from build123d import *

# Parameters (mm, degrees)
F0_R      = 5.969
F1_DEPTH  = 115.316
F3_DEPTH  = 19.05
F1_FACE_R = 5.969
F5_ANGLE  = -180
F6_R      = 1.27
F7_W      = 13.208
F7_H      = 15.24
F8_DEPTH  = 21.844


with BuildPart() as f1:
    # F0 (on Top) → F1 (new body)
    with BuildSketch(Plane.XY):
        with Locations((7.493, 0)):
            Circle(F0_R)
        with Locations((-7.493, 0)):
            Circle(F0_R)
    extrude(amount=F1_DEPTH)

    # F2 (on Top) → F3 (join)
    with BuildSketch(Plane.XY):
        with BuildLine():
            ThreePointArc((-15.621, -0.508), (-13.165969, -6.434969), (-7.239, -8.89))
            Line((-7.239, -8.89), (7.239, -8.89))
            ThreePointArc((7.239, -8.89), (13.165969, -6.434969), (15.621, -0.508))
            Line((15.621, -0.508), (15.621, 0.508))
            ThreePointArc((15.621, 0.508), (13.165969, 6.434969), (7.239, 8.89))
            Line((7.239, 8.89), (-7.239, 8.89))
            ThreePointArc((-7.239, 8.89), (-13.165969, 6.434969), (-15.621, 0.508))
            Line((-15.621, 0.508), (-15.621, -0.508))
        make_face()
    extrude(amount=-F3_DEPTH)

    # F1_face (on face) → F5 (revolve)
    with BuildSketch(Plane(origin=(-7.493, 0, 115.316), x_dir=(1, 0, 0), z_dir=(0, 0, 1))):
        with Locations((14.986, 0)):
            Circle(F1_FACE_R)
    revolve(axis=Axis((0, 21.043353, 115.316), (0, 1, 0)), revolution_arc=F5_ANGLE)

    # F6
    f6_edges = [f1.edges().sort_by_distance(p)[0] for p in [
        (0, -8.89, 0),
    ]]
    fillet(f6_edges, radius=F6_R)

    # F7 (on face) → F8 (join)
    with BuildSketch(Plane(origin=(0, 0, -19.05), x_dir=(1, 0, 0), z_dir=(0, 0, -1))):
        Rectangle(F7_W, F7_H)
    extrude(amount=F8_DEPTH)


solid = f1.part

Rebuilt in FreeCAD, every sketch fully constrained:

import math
import FreeCAD as App
import Part
import Sketcher
Q = App.Units.Quantity


def edges_at(feature, points):
    """Names of the edges that pass closest to the given points."""
    edges = feature.Shape.Edges
    near = lambda p: min(range(len(edges)), key=lambda i: edges[i].distToShape(Part.Vertex(*p))[0])
    return sorted({f"Edge{near(p) + 1}" for p in points})

doc = App.newDocument("Part")
body = doc.addObject("PartDesign::Body", "Body")
body.AllowCompound = True

# Sketch on XY plane
sketch1 = doc.addObject("Sketcher::SketchObject", "Sketch")
body.addObject(sketch1)
sketch1.AttachmentSupport = (doc.XY_Plane, [""])
sketch1.MapMode = "FlatFace"
sketch1.addGeometry([
    Part.Circle(App.Vector(7, 0, 0), App.Vector(0, 0, 1), 6),
    Part.Circle(App.Vector(-7, 0, 0), App.Vector(0, 0, 1), 6),
], False)
sketch1.addConstraint([
    Sketcher.Constraint("Equal", 0, 1),
    Sketcher.Constraint("Symmetric", 0, 3, 1, 3, -1, 1),
    Sketcher.Constraint("PointOnObject", 0, 3, -1),
    Sketcher.Constraint("Diameter", 0, Q("0.47 in")),
    Sketcher.Constraint("DistanceX", 1, 3, 0, 3, Q("0.59 in")),
])
pad1 = doc.addObject("PartDesign::Pad", "Pad")
body.addObject(pad1)
pad1.Profile = sketch1
pad1.Length = Q("4.54 in")

# Sketch on XY plane
sketch2 = doc.addObject("Sketcher::SketchObject", "Sketch001")
body.addObject(sketch2)
sketch2.AttachmentSupport = (doc.XY_Plane, [""])
sketch2.MapMode = "FlatFace"
sketch2.addGeometry([
    Part.ArcOfCircle(Part.Circle(App.Vector(-7.2, -0.5, 0), App.Vector(0, 0, 1), 8.4), math.radians(-180), math.radians(-90)),  # 0
    Part.LineSegment(App.Vector(-7.2, -8.9, 0), App.Vector(7.2, -8.9, 0)),  # 1
    Part.ArcOfCircle(Part.Circle(App.Vector(7.2, -0.5, 0), App.Vector(0, 0, 1), 8.4), math.radians(-90), math.radians(0)),  # 2
    Part.LineSegment(App.Vector(15.6, -0.5, 0), App.Vector(15.6, 0.5, 0)),  # 3
    Part.ArcOfCircle(Part.Circle(App.Vector(7.2, 0.5, 0), App.Vector(0, 0, 1), 8.4), math.radians(0), math.radians(90)),  # 4
    Part.LineSegment(App.Vector(7.2, 8.9, 0), App.Vector(-7.2, 8.9, 0)),  # 5
    Part.ArcOfCircle(Part.Circle(App.Vector(-7.2, 0.5, 0), App.Vector(0, 0, 1), 8.4), math.radians(90), math.radians(180)),  # 6
    Part.LineSegment(App.Vector(-15.6, 0.5, 0), App.Vector(-15.6, -0.5, 0)),  # 7
], False)
sketch2.addConstraint([
    Sketcher.Constraint("Tangent", 0, 2, 1, 1),
    Sketcher.Constraint("Tangent", 1, 2, 2, 1),
    Sketcher.Constraint("Tangent", 2, 2, 3, 1),
    Sketcher.Constraint("Tangent", 3, 2, 4, 1),
    Sketcher.Constraint("Tangent", 4, 2, 5, 1),
    Sketcher.Constraint("Tangent", 5, 2, 6, 1),
    Sketcher.Constraint("Tangent", 6, 2, 7, 1),
    Sketcher.Constraint("Tangent", 7, 2, 0, 1),
    Sketcher.Constraint("Horizontal", 1),
    Sketcher.Constraint("Vertical", 3),
    Sketcher.Constraint("Horizontal", 5),
    Sketcher.Constraint("Vertical", 7),
    Sketcher.Constraint("Equal", 0, 2),
    Sketcher.Constraint("Equal", 2, 4),
    Sketcher.Constraint("Equal", 4, 6),
    Sketcher.Constraint("Symmetric", 0, 3, 4, 3, -1, 1),
    Sketcher.Constraint("Radius", 0, Q("0.33 in")),
    Sketcher.Constraint("DistanceX", 1, 1, 1, 2, Q("0.57 in")),
    Sketcher.Constraint("DistanceY", 3, 1, 3, 2, Q("0.04 in")),
])
pad2 = doc.addObject("PartDesign::Pad", "Pad001")
body.addObject(pad2)
pad2.Profile = sketch2
pad2.Length = Q("0.75 in")
pad2.Reversed = True

# Sketch on XY plane
sketch3 = doc.addObject("Sketcher::SketchObject", "Sketch002")
body.addObject(sketch3)
sketch3.AttachmentSupport = (doc.XY_Plane, [""])
sketch3.MapMode = "FlatFace"
sketch3.AttachmentOffset = App.Placement(App.Vector(0, 0, 4.54 * 25.4), App.Rotation())
sketch3.addGeometry(Part.Circle(App.Vector(7, 0, 0), App.Vector(0, 0, 1), 6), False)
sketch3.addConstraint([
    Sketcher.Constraint("PointOnObject", 0, 3, -1),
    Sketcher.Constraint("Diameter", 0, Q("0.47 in")),
    Sketcher.Constraint("DistanceX", -1, 1, 0, 3, Q("0.295 in")),
])
revolution = doc.addObject("PartDesign::Revolution", "Revolution")
body.addObject(revolution)
revolution.Profile = sketch3
revolution.ReferenceAxis = (sketch3, ["V_Axis"])
revolution.Angle = 180
revolution.Reversed = True
doc.recompute()

fillet = doc.addObject("PartDesign::Fillet", "Fillet")
body.addObject(fillet)
fillet.Base = (revolution, edges_at(revolution, [(0, -8.89, 0)]))
fillet.Radius = Q("0.05 in")

# Sketch on XY plane
sketch4 = doc.addObject("Sketcher::SketchObject", "Sketch003")
body.addObject(sketch4)
sketch4.AttachmentSupport = (doc.XY_Plane, [""])
sketch4.MapMode = "FlatFace"
sketch4.AttachmentOffset = App.Placement(App.Vector(0, 0, -0.75 * 25.4), App.Rotation())
sketch4.addGeometry([
    Part.LineSegment(App.Vector(-7, -8, 0), App.Vector(-7, 8, 0)),
    Part.LineSegment(App.Vector(-7, 8, 0), App.Vector(7, 8, 0)),
    Part.LineSegment(App.Vector(7, 8, 0), App.Vector(7, -8, 0)),
    Part.LineSegment(App.Vector(7, -8, 0), App.Vector(-7, -8, 0)),
], False)
sketch4.addConstraint([
    Sketcher.Constraint("Coincident", 0, 2, 1, 1),
    Sketcher.Constraint("Coincident", 1, 2, 2, 1),
    Sketcher.Constraint("Coincident", 2, 2, 3, 1),
    Sketcher.Constraint("Coincident", 3, 2, 0, 1),
    Sketcher.Constraint("Vertical", 0),
    Sketcher.Constraint("Horizontal", 1),
    Sketcher.Constraint("Vertical", 2),
    Sketcher.Constraint("Horizontal", 3),
    Sketcher.Constraint("Symmetric", 0, 2, 2, 2, -1, 1),
    Sketcher.Constraint("DistanceY", 0, 1, 0, 2, Q("0.6 in")),
    Sketcher.Constraint("DistanceX", 1, 1, 1, 2, Q("0.52 in")),
])
pad3 = doc.addObject("PartDesign::Pad", "Pad002")
body.addObject(pad3)
pad3.Profile = sketch4
pad3.Length = Q("0.86 in")
pad3.Reversed = True

doc.recompute()
